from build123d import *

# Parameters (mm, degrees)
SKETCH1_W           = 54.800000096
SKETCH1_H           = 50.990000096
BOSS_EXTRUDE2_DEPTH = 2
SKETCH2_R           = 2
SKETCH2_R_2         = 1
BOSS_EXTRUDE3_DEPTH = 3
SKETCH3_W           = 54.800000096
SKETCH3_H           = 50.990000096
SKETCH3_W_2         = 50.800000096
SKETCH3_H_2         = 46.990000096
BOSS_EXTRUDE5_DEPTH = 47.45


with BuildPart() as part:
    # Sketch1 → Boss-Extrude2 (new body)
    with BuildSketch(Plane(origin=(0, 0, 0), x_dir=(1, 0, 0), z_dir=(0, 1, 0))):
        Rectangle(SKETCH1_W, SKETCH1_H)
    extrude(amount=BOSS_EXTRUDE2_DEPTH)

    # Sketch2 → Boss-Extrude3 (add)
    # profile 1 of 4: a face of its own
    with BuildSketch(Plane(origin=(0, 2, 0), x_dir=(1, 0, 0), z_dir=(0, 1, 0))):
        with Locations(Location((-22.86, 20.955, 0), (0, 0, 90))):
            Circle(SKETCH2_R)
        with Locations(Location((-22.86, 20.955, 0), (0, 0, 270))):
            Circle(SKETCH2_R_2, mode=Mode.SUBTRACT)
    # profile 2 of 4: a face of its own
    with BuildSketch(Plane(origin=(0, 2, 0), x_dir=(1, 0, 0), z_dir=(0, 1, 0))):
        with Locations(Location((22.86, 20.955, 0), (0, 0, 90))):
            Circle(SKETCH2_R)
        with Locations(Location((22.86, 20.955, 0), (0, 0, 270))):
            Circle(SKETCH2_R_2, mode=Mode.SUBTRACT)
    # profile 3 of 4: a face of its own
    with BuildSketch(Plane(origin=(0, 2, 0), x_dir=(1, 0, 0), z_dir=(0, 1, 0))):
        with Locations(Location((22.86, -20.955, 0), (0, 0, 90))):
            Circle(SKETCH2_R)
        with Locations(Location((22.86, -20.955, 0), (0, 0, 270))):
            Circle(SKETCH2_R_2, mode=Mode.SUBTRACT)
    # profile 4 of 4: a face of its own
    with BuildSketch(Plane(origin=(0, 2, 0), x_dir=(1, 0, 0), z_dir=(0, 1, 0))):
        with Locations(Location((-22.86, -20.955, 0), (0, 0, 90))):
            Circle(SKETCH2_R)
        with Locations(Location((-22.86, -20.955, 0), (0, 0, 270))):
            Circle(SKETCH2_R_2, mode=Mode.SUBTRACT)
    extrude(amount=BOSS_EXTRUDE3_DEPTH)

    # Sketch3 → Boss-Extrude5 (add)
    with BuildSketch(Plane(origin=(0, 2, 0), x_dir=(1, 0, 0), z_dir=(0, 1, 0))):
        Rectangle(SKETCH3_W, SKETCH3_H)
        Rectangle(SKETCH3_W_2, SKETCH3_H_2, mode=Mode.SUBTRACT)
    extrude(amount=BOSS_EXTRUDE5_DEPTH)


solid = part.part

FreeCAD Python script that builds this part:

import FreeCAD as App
import Part
import Sketcher
Q = App.Units.Quantity


def add_polygon(sketch, points):
    """Adds a closed chain of lines whose ends are joined by coincident constraints."""
    first, n = sketch.GeometryCount, len(points)
    for a, b in zip(points, points[1:] + points[:1]):
        sketch.addGeometry(Part.LineSegment(App.Vector(*a, 0), App.Vector(*b, 0)), False)
    for i in range(n):
        sketch.addConstraint(Sketcher.Constraint("Coincident", first + i, 2, first + (i + 1) % n, 1))

doc = App.newDocument("Part")
params = doc.addObject("Spreadsheet::Sheet", "Params")
for row, (alias, value) in enumerate([
    ("sketch1_width", "54.8 mm"),
    ("sketch1_height", "50.99 mm"),
    ("pad1_length", "2 mm"),
    ("sketch2_diameter", "4 mm"),
    ("sketch2_diameter2", "2 mm"),
    ("pad2_length", "3 mm"),
    ("sketch3_width", "54.8 mm"),
    ("sketch3_width2", "50.8 mm"),
    ("sketch3_height", "50.99 mm"),
    ("pad3_length", "47.45 mm"),
], start=1):
    params.set(f"A{row}", alias)
    params.set(f"B{row}", "=" + value)
    params.setAlias(f"B{row}", alias)

body = doc.addObject("PartDesign::Body", "Body")

sketch1 = body.newObject("Sketcher::SketchObject", "Sketch")
sketch1.AttachmentSupport = (doc.getObject("XZ_Plane"), [""])
sketch1.MapMode = "FlatFace"
add_polygon(sketch1, [(-27, -25), (-27, 25), (27, 25), (27, -25)])
sketch1.addConstraint([
    Sketcher.Constraint("Vertical", 0),
    Sketcher.Constraint("Horizontal", 1),
    Sketcher.Constraint("Vertical", 2),
    Sketcher.Constraint("Horizontal", 3),
    Sketcher.Constraint("Symmetric", 0, 2, 2, 2, -1, 1),
    Sketcher.Constraint("DistanceX", 1, 1, 1, 2, Q("54.8 mm")),
    Sketcher.Constraint("DistanceY", 0, 1, 0, 2, Q("50.99 mm")),
])
sketch1.setExpression("Constraints[9]", "Params.sketch1_width")
sketch1.setExpression("Constraints[10]", "Params.sketch1_height")
pad1 = body.newObject("PartDesign::Pad", "Pad")
pad1.Profile = sketch1
pad1.setExpression("Length", "Params.pad1_length")
pad1.Reversed = True

sketch2 = body.newObject("Sketcher::SketchObject", "Sketch001")
sketch2.AttachmentSupport = (doc.getObject("XZ_Plane"), [""])
sketch2.MapMode = "FlatFace"
sketch2.AttachmentOffset = App.Placement(App.Vector(0, 0, -2), App.Rotation())
sketch2.addGeometry([
    Part.Circle(App.Vector(-22.9, -21, 0), App.Vector(0, 0, 1), 2),
    Part.Circle(App.Vector(-22.9, -21, 0), App.Vector(0, 0, 1), 1),
    Part.Circle(App.Vector(22.9, -21, 0), App.Vector(0, 0, 1), 2),
    Part.Circle(App.Vector(22.9, -21, 0), App.Vector(0, 0, 1), 1),
    Part.Circle(App.Vector(22.9, 21, 0), App.Vector(0, 0, 1), 2),
    Part.Circle(App.Vector(22.9, 21, 0), App.Vector(0, 0, 1), 1),
    Part.Circle(App.Vector(-22.9, 21, 0), App.Vector(0, 0, 1), 2),
    Part.Circle(App.Vector(-22.9, 21, 0), App.Vector(0, 0, 1), 1),
], False)
sketch2.addConstraint([
    Sketcher.Constraint("Coincident", 1, 3, 0, 3),
    Sketcher.Constraint("Coincident", 3, 3, 2, 3),
    Sketcher.Constraint("Coincident", 5, 3, 4, 3),
    Sketcher.Constraint("Coincident", 7, 3, 6, 3),
    Sketcher.Constraint("Equal", 0, 2),
    Sketcher.Constraint("Equal", 1, 3),
    Sketcher.Constraint("Equal", 2, 4),
    Sketcher.Constraint("Equal", 3, 5),
    Sketcher.Constraint("Equal", 4, 6),
    Sketcher.Constraint("Equal", 5, 7),
    Sketcher.Constraint("Symmetric", 0, 3, 4, 3, -1, 1),
    Sketcher.Constraint("Symmetric", 2, 3, 6, 3, -1, 1),
    Sketcher.Constraint("Symmetric", 0, 3, 2, 3, -2),
    Sketcher.Constraint("Diameter", 0, Q("4 mm")),
    Sketcher.Constraint("Diameter", 1, Q("2 mm")),
    Sketcher.Constraint("DistanceX", 0, 3, -1, 1, Q("22.86 mm")),
    Sketcher.Constraint("DistanceY", 2, 3, 4, 3, Q("41.91 mm")),
])
sketch2.setExpression("Constraints[13]", "Params.sketch2_diameter")
sketch2.setExpression("Constraints[14]", "Params.sketch2_diameter2")
pad2 = body.newObject("PartDesign::Pad", "Pad001")
pad2.Profile = sketch2
pad2.setExpression("Length", "Params.pad2_length")
pad2.Reversed = True

sketch3 = body.newObject("Sketcher::SketchObject", "Sketch002")
sketch3.AttachmentSupport = (doc.getObject("XZ_Plane"), [""])
sketch3.MapMode = "FlatFace"
sketch3.AttachmentOffset = App.Placement(App.Vector(0, 0, -2), App.Rotation())
add_polygon(sketch3, [(-27, -25), (-27, 25), (27, 25), (27, -25)])
add_polygon(sketch3, [(25, 23), (-25, 23), (-25, -23), (25, -23)])
sketch3.addConstraint([
    Sketcher.Constraint("Vertical", 0),
    Sketcher.Constraint("Horizontal", 1),
    Sketcher.Constraint("Vertical", 2),
    Sketcher.Constraint("Horizontal", 3),
    Sketcher.Constraint("Horizontal", 4),
    Sketcher.Constraint("Vertical", 5),
    Sketcher.Constraint("Horizontal", 6),
    Sketcher.Constraint("Vertical", 7),
    Sketcher.Constraint("Symmetric", 0, 2, 2, 2, -1, 1),
    Sketcher.Constraint("Symmetric", 4, 2, 6, 2, -1, 1),
    Sketcher.Constraint("DistanceX", 1, 1, 1, 2, Q("54.8 mm")),
    Sketcher.Constraint("DistanceX", 4, 2, 4, 1, Q("50.8 mm")),
    Sketcher.Constraint("DistanceY", 4, 2, 0, 2, Q("2 mm")),
    Sketcher.Constraint("DistanceY", 0, 1, 0, 2, Q("50.99 mm")),
])
sketch3.setExpression("Constraints[18]", "Params.sketch3_width")
sketch3.setExpression("Constraints[19]", "Params.sketch3_width2")
sketch3.setExpression("Constraints[21]", "Params.sketch3_height")
pad3 = body.newObject("PartDesign::Pad", "Pad002")
pad3.Profile = sketch3
pad3.setExpression("Length", "Params.pad3_length")
pad3.Reversed = True

doc.recompute()
